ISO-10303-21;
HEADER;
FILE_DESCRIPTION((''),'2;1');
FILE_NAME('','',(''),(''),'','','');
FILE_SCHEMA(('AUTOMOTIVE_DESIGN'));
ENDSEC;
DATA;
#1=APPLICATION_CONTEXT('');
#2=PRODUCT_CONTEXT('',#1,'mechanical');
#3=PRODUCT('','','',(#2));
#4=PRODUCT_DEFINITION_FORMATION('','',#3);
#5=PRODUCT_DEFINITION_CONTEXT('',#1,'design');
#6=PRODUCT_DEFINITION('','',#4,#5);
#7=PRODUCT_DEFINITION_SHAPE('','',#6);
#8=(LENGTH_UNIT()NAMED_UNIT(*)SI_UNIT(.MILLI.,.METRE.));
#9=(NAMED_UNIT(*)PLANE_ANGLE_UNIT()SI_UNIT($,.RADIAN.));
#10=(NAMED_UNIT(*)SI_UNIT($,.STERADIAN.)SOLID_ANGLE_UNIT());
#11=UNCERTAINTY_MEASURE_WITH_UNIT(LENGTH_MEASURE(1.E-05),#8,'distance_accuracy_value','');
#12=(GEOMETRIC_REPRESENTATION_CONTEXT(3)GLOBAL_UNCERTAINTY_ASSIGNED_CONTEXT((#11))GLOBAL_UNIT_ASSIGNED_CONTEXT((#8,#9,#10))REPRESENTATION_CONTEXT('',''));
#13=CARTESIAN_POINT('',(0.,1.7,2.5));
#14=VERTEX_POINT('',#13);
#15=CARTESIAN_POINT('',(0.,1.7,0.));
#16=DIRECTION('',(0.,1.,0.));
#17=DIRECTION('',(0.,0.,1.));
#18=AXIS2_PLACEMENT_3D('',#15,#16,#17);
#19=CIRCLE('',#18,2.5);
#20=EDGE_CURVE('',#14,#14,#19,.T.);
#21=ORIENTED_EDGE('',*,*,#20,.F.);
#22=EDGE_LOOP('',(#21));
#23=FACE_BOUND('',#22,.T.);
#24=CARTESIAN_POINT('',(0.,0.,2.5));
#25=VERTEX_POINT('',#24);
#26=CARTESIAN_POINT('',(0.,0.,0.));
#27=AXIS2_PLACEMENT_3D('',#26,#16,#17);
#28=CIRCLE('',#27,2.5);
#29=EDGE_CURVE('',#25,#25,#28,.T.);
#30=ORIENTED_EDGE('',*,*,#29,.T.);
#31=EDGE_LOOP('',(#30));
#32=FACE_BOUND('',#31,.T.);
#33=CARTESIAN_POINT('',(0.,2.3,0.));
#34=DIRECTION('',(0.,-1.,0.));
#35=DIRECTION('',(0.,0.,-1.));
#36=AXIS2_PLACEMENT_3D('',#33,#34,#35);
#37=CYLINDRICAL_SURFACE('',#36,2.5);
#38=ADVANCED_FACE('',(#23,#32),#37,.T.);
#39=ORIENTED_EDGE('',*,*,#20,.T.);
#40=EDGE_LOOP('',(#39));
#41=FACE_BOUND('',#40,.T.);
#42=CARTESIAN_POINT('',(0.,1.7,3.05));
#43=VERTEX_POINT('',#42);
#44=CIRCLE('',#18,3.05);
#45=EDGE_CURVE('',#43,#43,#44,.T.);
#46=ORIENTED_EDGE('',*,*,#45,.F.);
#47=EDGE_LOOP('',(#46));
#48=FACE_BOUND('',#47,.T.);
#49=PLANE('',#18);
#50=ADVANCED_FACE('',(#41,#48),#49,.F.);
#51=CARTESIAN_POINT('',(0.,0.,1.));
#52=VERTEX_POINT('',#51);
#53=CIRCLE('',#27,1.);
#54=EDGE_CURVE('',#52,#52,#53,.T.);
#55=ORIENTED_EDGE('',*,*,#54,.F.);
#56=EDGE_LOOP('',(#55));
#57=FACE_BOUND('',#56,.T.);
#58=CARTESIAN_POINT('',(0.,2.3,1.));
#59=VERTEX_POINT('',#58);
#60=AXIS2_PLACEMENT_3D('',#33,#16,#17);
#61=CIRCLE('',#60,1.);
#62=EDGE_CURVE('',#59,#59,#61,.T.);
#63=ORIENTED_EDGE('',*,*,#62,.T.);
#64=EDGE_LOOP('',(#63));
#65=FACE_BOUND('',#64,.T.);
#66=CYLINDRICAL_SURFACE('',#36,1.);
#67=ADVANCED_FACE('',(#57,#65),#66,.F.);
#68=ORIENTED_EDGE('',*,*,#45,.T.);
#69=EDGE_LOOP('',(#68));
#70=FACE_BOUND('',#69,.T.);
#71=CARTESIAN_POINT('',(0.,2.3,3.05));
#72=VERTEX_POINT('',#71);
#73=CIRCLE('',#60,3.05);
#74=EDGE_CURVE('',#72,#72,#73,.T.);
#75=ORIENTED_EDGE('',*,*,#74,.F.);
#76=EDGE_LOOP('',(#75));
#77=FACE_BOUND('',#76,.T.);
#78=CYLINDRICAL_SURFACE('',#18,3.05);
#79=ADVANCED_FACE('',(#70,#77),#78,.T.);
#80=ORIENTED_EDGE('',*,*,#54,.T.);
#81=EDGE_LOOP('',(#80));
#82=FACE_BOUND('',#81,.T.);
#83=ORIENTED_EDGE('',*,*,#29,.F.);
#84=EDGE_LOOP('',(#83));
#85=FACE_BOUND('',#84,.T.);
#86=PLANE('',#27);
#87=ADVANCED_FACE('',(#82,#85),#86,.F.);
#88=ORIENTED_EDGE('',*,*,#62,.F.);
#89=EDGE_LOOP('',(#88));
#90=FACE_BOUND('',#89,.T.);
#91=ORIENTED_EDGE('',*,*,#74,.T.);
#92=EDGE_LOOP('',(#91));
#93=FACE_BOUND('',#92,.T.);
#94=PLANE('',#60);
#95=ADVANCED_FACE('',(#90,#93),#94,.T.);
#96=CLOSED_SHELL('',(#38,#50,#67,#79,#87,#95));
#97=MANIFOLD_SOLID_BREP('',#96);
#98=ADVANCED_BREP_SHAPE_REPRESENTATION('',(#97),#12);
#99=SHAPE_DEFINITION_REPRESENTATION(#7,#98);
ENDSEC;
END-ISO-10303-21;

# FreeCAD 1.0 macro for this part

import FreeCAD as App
import Part
import Sketcher

doc = App.newDocument("Part")
body = doc.addObject("PartDesign::Body", "Body")

# Sketch on XZ plane
sketch1 = doc.addObject("Sketcher::SketchObject", "Sketch")
body.addObject(sketch1)
sketch1.AttachmentSupport = (doc.XZ_Plane, [""])
sketch1.MapMode = "FlatFace"
sketch1.addGeometry(Part.Circle(App.Vector(0, 0, 0), App.Vector(0, 0, 1), 2.5), False)
sketch1.addGeometry(Part.Circle(App.Vector(0, 0, 0), App.Vector(0, 0, 1), 1), False)
sketch1.addConstraint(Sketcher.Constraint("Coincident", 0, 3, -1, 1))
sketch1.addConstraint(Sketcher.Constraint("Coincident", 1, 3, -1, 1))
sketch1.addConstraint(Sketcher.Constraint("Diameter", 0, 5.0))
sketch1.addConstraint(Sketcher.Constraint("Diameter", 1, 2.0))
pad1 = doc.addObject("PartDesign::Pad", "Pad")
body.addObject(pad1)
pad1.Profile = sketch1
pad1.Length = 2.3
pad1.Reversed = True

# Sketch on XZ plane
sketch2 = doc.addObject("Sketcher::SketchObject", "Sketch001")
body.addObject(sketch2)
sketch2.AttachmentSupport = (doc.XZ_Plane, [""])
sketch2.MapMode = "FlatFace"
sketch2.AttachmentOffset = App.Placement(App.Vector(0, 0, -2.3), App.Rotation())
sketch2.addGeometry(Part.Circle(App.Vector(0, 0, 0), App.Vector(0, 0, 1), 3.05), False)
sketch2.addGeometry(Part.Circle(App.Vector(0, 0, 0), App.Vector(0, 0, 1), 1), False)
sketch2.addConstraint(Sketcher.Constraint("Coincident", 0, 3, -1, 1))
sketch2.addConstraint(Sketcher.Constraint("Coincident", 1, 3, -1, 1))
sketch2.addConstraint(Sketcher.Constraint("Diameter", 1, 2.0))
sketch2.addConstraint(Sketcher.Constraint("Diameter", 0, 6.1))
pad2 = doc.addObject("PartDesign::Pad", "Pad001")
body.addObject(pad2)
pad2.Profile = sketch2
pad2.Length = 0.6

doc.recompute()
